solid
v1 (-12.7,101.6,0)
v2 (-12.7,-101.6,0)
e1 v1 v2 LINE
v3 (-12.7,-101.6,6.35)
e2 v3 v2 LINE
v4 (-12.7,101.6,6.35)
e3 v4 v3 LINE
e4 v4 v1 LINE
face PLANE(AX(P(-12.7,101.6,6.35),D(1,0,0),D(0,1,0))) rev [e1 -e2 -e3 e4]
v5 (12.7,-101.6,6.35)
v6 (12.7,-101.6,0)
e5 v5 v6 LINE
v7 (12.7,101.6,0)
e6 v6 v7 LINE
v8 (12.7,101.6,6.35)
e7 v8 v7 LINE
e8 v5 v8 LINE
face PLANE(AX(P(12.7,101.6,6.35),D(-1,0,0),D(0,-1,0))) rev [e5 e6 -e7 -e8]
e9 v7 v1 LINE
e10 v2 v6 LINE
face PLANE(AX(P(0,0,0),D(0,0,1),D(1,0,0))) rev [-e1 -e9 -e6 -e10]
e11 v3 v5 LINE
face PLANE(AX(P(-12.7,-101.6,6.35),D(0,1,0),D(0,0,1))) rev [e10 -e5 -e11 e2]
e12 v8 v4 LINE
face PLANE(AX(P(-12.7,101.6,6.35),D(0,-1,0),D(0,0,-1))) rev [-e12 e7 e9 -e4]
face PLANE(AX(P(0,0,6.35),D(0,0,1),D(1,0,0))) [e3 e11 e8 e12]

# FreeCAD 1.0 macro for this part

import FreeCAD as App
import Part
import Sketcher

V = App.Vector
Q = App.Units.Quantity


def add_polygon(sketch, points):
    """Adds a closed chain of lines whose ends are joined by coincident constraints."""
    first, n = sketch.GeometryCount, len(points)
    for a, b in zip(points, points[1:] + points[:1]):
        sketch.addGeometry(Part.LineSegment(App.Vector(*a, 0), App.Vector(*b, 0)), False)
    for i in range(n):
        sketch.addConstraint(Sketcher.Constraint("Coincident", first + i, 2, first + (i + 1) % n, 1))

doc = App.newDocument("Part")
body = doc.addObject("PartDesign::Body", "Body")

# Sketch on XY plane
sketch1 = doc.addObject("Sketcher::SketchObject", "Sketch")
body.addObject(sketch1)
sketch1.AttachmentSupport = (doc.XY_Plane, [""])
sketch1.MapMode = "FlatFace"
add_polygon(sketch1, [(-13, 102), (-13, -102), (13, -102), (13, 102)])  # lines 0-3
sketch1.addConstraint([
    Sketcher.Constraint("Vertical", 0),
    Sketcher.Constraint("Horizontal", 1),
    Sketcher.Constraint("Vertical", 2),
    Sketcher.Constraint("Horizontal", 3),
    Sketcher.Constraint("Symmetric", 0, 2, 2, 2, -1, 1),
    Sketcher.Constraint("DistanceX", 1, 1, 1, 2, Q("1 in")),
    Sketcher.Constraint("DistanceY", 0, 2, 0, 1, Q("8 in")),
])
pad1 = doc.addObject("PartDesign::Pad", "Pad")
body.addObject(pad1)
pad1.Profile = sketch1
pad1.Length = Q("0.25 in")

doc.recompute()
